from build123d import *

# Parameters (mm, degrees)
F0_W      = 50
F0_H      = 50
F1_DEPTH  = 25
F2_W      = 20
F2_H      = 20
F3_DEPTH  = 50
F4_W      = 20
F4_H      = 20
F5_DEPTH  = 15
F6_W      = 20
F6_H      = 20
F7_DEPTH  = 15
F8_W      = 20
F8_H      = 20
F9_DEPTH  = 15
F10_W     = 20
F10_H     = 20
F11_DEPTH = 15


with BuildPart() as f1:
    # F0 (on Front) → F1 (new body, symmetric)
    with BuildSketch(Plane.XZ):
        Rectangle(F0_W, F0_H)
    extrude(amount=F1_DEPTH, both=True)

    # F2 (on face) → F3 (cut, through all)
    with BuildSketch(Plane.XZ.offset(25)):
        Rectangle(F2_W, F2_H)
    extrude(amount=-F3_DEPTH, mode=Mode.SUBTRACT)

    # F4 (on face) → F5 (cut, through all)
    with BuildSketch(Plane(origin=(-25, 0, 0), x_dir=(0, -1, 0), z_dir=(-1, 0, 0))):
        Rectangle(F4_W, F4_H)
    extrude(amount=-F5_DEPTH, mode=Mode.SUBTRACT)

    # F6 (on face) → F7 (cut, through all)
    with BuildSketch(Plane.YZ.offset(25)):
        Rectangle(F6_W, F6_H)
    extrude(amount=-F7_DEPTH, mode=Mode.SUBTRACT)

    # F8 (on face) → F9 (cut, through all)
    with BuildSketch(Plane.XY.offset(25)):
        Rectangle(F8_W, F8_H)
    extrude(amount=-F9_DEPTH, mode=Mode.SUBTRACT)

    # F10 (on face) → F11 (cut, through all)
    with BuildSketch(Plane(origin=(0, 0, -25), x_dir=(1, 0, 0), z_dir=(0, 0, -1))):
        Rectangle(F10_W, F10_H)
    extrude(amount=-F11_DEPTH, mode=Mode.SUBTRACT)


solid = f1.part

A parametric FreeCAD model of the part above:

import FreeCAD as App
import Part
import Sketcher

V = App.Vector
Q = App.Units.Quantity

doc = App.newDocument("Part")
body = doc.addObject("PartDesign::Body", "Body")

# Sketch on XZ plane
sketch1 = body.newObject("Sketcher::SketchObject", "Sketch")
sketch1.AttachmentSupport = (doc.getObject("XZ_Plane"), [""])
sketch1.MapMode = "FlatFace"
sketch1.addGeometry(Part.LineSegment(V(-25, 25, 0), V(-25, -25, 0)), False)
sketch1.addGeometry(Part.LineSegment(V(-25, -25, 0), V(25, -25, 0)), False)
sketch1.addGeometry(Part.LineSegment(V(25, -25, 0), V(25, 25, 0)), False)
sketch1.addGeometry(Part.LineSegment(V(25, 25, 0), V(-25, 25, 0)), False)
sketch1.addConstraint(Sketcher.Constraint("Coincident", 0, 2, 1, 1))
sketch1.addConstraint(Sketcher.Constraint("Coincident", 1, 2, 2, 1))
sketch1.addConstraint(Sketcher.Constraint("Coincident", 2, 2, 3, 1))
sketch1.addConstraint(Sketcher.Constraint("Coincident", 3, 2, 0, 1))
sketch1.addConstraint(Sketcher.Constraint("Vertical", 0))
sketch1.addConstraint(Sketcher.Constraint("Horizontal", 1))
sketch1.addConstraint(Sketcher.Constraint("Vertical", 2))
sketch1.addConstraint(Sketcher.Constraint("Horizontal", 3))
sketch1.addConstraint(Sketcher.Constraint("Symmetric", 0, 2, 2, 2, -1, 1))
sketch1.addConstraint(Sketcher.Constraint("Equal", 3, 0))
sketch1.addConstraint(Sketcher.Constraint("DistanceX", 1, 1, 1, 2, Q("50 mm")))
pad1 = body.newObject("PartDesign::Pad", "Pad")
pad1.Profile = sketch1
pad1.Length = 50
pad1.Midplane = True

# Sketch on XZ plane
sketch2 = body.newObject("Sketcher::SketchObject", "Sketch001")
sketch2.AttachmentSupport = (doc.getObject("XZ_Plane"), [""])
sketch2.MapMode = "FlatFace"
sketch2.AttachmentOffset = App.Placement(V(0, 0, 25), App.Rotation())
sketch2.addGeometry(Part.LineSegment(V(-10, 10, 0), V(-10, -10, 0)), False)
sketch2.addGeometry(Part.LineSegment(V(-10, -10, 0), V(10, -10, 0)), False)
sketch2.addGeometry(Part.LineSegment(V(10, -10, 0), V(10, 10, 0)), False)
sketch2.addGeometry(Part.LineSegment(V(10, 10, 0), V(-10, 10, 0)), False)
sketch2.addConstraint(Sketcher.Constraint("Coincident", 0, 2, 1, 1))
sketch2.addConstraint(Sketcher.Constraint("Coincident", 1, 2, 2, 1))
sketch2.addConstraint(Sketcher.Constraint("Coincident", 2, 2, 3, 1))
sketch2.addConstraint(Sketcher.Constraint("Coincident", 3, 2, 0, 1))
sketch2.addConstraint(Sketcher.Constraint("Vertical", 0))
sketch2.addConstraint(Sketcher.Constraint("Horizontal", 1))
sketch2.addConstraint(Sketcher.Constraint("Vertical", 2))
sketch2.addConstraint(Sketcher.Constraint("Horizontal", 3))
sketch2.addConstraint(Sketcher.Constraint("Symmetric", 0, 2, 2, 2, -1, 1))
sketch2.addConstraint(Sketcher.Constraint("Equal", 3, 0))
sketch2.addConstraint(Sketcher.Constraint("DistanceX", 1, 1, 1, 2, Q("20 mm")))
pocket1 = body.newObject("PartDesign::Pocket", "Pocket")
pocket1.Profile = sketch2
pocket1.Type = "ThroughAll"

# Sketch on YZ plane
sketch3 = body.newObject("Sketcher::SketchObject", "Sketch002")
sketch3.AttachmentSupport = (doc.getObject("YZ_Plane"), [""])
sketch3.MapMode = "FlatFace"
sketch3.AttachmentOffset = App.Placement(V(0, 0, -25), App.Rotation())
sketch3.addGeometry(Part.LineSegment(V(10, 10, 0), V(10, -10, 0)), False)
sketch3.addGeometry(Part.LineSegment(V(10, -10, 0), V(-10, -10, 0)), False)
sketch3.addGeometry(Part.LineSegment(V(-10, -10, 0), V(-10, 10, 0)), False)
sketch3.addGeometry(Part.LineSegment(V(-10, 10, 0), V(10, 10, 0)), False)
sketch3.addConstraint(Sketcher.Constraint("Coincident", 0, 2, 1, 1))
sketch3.addConstraint(Sketcher.Constraint("Coincident", 1, 2, 2, 1))
sketch3.addConstraint(Sketcher.Constraint("Coincident", 2, 2, 3, 1))
sketch3.addConstraint(Sketcher.Constraint("Coincident", 3, 2, 0, 1))
sketch3.addConstraint(Sketcher.Constraint("Vertical", 0))
sketch3.addConstraint(Sketcher.Constraint("Horizontal", 1))
sketch3.addConstraint(Sketcher.Constraint("Vertical", 2))
sketch3.addConstraint(Sketcher.Constraint("Horizontal", 3))
sketch3.addConstraint(Sketcher.Constraint("Symmetric", 0, 2, 2, 2, -1, 1))
sketch3.addConstraint(Sketcher.Constraint("Equal", 3, 0))
sketch3.addConstraint(Sketcher.Constraint("DistanceX", 1, 2, 1, 1, Q("20 mm")))
pocket2 = body.newObject("PartDesign::Pocket", "Pocket001")
pocket2.Profile = sketch3
pocket2.Length = 15
pocket2.Reversed = True

# Sketch on YZ plane
sketch4 = body.newObject("Sketcher::SketchObject", "Sketch003")
sketch4.AttachmentSupport = (doc.getObject("YZ_Plane"), [""])
sketch4.MapMode = "FlatFace"
sketch4.AttachmentOffset = App.Placement(V(0, 0, 25), App.Rotation())
sketch4.addGeometry(Part.LineSegment(V(-10, 10, 0), V(-10, -10, 0)), False)
sketch4.addGeometry(Part.LineSegment(V(-10, -10, 0), V(10, -10, 0)), False)
sketch4.addGeometry(Part.LineSegment(V(10, -10, 0), V(10, 10, 0)), False)
sketch4.addGeometry(Part.LineSegment(V(10, 10, 0), V(-10, 10, 0)), False)
sketch4.addConstraint(Sketcher.Constraint("Coincident", 0, 2, 1, 1))
sketch4.addConstraint(Sketcher.Constraint("Coincident", 1, 2, 2, 1))
sketch4.addConstraint(Sketcher.Constraint("Coincident", 2, 2, 3, 1))
sketch4.addConstraint(Sketcher.Constraint("Coincident", 3, 2, 0, 1))
sketch4.addConstraint(Sketcher.Constraint("Vertical", 0))
sketch4.addConstraint(Sketcher.Constraint("Horizontal", 1))
sketch4.addConstraint(Sketcher.Constraint("Vertical", 2))
sketch4.addConstraint(Sketcher.Constraint("Horizontal", 3))
sketch4.addConstraint(Sketcher.Constraint("Symmetric", 0, 2, 2, 2, -1, 1))
sketch4.addConstraint(Sketcher.Constraint("Equal", 3, 0))
sketch4.addConstraint(Sketcher.Constraint("DistanceX", 1, 1, 1, 2, Q("20 mm")))
pocket3 = body.newObject("PartDesign::Pocket", "Pocket002")
pocket3.Profile = sketch4
pocket3.Type = "ThroughAll"

# Sketch on XY plane
sketch5 = body.newObject("Sketcher::SketchObject", "Sketch004")
sketch5.AttachmentSupport = (doc.getObject("XY_Plane"), [""])
sketch5.MapMode = "FlatFace"
sketch5.AttachmentOffset = App.Placement(V(0, 0, 25), App.Rotation())
sketch5.addGeometry(Part.LineSegment(V(-10, 10, 0), V(-10, -10, 0)), False)
sketch5.addGeometry(Part.LineSegment(V(-10, -10, 0), V(10, -10, 0)), False)
sketch5.addGeometry(Part.LineSegment(V(10, -10, 0), V(10, 10, 0)), False)
sketch5.addGeometry(Part.LineSegment(V(10, 10, 0), V(-10, 10, 0)), False)
sketch5.addConstraint(Sketcher.Constraint("Coincident", 0, 2, 1, 1))
sketch5.addConstraint(Sketcher.Constraint("Coincident", 1, 2, 2, 1))
sketch5.addConstraint(Sketcher.Constraint("Coincident", 2, 2, 3, 1))
sketch5.addConstraint(Sketcher.Constraint("Coincident", 3, 2, 0, 1))
sketch5.addConstraint(Sketcher.Constraint("Vertical", 0))
sketch5.addConstraint(Sketcher.Constraint("Horizontal", 1))
sketch5.addConstraint(Sketcher.Constraint("Vertical", 2))
sketch5.addConstraint(Sketcher.Constraint("Horizontal", 3))
sketch5.addConstraint(Sketcher.Constraint("Symmetric", 0, 2, 2, 2, -1, 1))
sketch5.addConstraint(Sketcher.Constraint("Equal", 3, 0))
sketch5.addConstraint(Sketcher.Constraint("DistanceX", 1, 1, 1, 2, Q("20 mm")))
pocket4 = body.newObject("PartDesign::Pocket", "Pocket003")
pocket4.Profile = sketch5
pocket4.Length = 15

# Sketch on XY plane
sketch6 = body.newObject("Sketcher::SketchObject", "Sketch005")
sketch6.AttachmentSupport = (doc.getObject("XY_Plane"), [""])
sketch6.MapMode = "FlatFace"
sketch6.AttachmentOffset = App.Placement(V(0, 0, -25), App.Rotation())
sketch6.addGeometry(Part.LineSegment(V(-10, -10, 0), V(-10, 10, 0)), False)
sketch6.addGeometry(Part.LineSegment(V(-10, 10, 0), V(10, 10, 0)), False)
sketch6.addGeometry(Part.LineSegment(V(10, 10, 0), V(10, -10, 0)), False)
sketch6.addGeometry(Part.LineSegment(V(10, -10, 0), V(-10, -10, 0)), False)
sketch6.addConstraint(Sketcher.Constraint("Coincident", 0, 2, 1, 1))
sketch6.addConstraint(Sketcher.Constraint("Coincident", 1, 2, 2, 1))
sketch6.addConstraint(Sketcher.Constraint("Coincident", 2, 2, 3, 1))
sketch6.addConstraint(Sketcher.Constraint("Coincident", 3, 2, 0, 1))
sketch6.addConstraint(Sketcher.Constraint("Vertical", 0))
sketch6.addConstraint(Sketcher.Constraint("Horizontal", 1))
sketch6.addConstraint(Sketcher.Constraint("Vertical", 2))
sketch6.addConstraint(Sketcher.Constraint("Horizontal", 3))
sketch6.addConstraint(Sketcher.Constraint("Symmetric", 0, 2, 2, 2, -1, 1))
sketch6.addConstraint(Sketcher.Constraint("Equal", 3, 0))
sketch6.addConstraint(Sketcher.Constraint("DistanceX", 1, 1, 1, 2, Q("20 mm")))
pocket5 = body.newObject("PartDesign::Pocket", "Pocket004")
pocket5.Profile = sketch6
pocket5.Type = "ThroughAll"
pocket5.Reversed = True

doc.recompute()
